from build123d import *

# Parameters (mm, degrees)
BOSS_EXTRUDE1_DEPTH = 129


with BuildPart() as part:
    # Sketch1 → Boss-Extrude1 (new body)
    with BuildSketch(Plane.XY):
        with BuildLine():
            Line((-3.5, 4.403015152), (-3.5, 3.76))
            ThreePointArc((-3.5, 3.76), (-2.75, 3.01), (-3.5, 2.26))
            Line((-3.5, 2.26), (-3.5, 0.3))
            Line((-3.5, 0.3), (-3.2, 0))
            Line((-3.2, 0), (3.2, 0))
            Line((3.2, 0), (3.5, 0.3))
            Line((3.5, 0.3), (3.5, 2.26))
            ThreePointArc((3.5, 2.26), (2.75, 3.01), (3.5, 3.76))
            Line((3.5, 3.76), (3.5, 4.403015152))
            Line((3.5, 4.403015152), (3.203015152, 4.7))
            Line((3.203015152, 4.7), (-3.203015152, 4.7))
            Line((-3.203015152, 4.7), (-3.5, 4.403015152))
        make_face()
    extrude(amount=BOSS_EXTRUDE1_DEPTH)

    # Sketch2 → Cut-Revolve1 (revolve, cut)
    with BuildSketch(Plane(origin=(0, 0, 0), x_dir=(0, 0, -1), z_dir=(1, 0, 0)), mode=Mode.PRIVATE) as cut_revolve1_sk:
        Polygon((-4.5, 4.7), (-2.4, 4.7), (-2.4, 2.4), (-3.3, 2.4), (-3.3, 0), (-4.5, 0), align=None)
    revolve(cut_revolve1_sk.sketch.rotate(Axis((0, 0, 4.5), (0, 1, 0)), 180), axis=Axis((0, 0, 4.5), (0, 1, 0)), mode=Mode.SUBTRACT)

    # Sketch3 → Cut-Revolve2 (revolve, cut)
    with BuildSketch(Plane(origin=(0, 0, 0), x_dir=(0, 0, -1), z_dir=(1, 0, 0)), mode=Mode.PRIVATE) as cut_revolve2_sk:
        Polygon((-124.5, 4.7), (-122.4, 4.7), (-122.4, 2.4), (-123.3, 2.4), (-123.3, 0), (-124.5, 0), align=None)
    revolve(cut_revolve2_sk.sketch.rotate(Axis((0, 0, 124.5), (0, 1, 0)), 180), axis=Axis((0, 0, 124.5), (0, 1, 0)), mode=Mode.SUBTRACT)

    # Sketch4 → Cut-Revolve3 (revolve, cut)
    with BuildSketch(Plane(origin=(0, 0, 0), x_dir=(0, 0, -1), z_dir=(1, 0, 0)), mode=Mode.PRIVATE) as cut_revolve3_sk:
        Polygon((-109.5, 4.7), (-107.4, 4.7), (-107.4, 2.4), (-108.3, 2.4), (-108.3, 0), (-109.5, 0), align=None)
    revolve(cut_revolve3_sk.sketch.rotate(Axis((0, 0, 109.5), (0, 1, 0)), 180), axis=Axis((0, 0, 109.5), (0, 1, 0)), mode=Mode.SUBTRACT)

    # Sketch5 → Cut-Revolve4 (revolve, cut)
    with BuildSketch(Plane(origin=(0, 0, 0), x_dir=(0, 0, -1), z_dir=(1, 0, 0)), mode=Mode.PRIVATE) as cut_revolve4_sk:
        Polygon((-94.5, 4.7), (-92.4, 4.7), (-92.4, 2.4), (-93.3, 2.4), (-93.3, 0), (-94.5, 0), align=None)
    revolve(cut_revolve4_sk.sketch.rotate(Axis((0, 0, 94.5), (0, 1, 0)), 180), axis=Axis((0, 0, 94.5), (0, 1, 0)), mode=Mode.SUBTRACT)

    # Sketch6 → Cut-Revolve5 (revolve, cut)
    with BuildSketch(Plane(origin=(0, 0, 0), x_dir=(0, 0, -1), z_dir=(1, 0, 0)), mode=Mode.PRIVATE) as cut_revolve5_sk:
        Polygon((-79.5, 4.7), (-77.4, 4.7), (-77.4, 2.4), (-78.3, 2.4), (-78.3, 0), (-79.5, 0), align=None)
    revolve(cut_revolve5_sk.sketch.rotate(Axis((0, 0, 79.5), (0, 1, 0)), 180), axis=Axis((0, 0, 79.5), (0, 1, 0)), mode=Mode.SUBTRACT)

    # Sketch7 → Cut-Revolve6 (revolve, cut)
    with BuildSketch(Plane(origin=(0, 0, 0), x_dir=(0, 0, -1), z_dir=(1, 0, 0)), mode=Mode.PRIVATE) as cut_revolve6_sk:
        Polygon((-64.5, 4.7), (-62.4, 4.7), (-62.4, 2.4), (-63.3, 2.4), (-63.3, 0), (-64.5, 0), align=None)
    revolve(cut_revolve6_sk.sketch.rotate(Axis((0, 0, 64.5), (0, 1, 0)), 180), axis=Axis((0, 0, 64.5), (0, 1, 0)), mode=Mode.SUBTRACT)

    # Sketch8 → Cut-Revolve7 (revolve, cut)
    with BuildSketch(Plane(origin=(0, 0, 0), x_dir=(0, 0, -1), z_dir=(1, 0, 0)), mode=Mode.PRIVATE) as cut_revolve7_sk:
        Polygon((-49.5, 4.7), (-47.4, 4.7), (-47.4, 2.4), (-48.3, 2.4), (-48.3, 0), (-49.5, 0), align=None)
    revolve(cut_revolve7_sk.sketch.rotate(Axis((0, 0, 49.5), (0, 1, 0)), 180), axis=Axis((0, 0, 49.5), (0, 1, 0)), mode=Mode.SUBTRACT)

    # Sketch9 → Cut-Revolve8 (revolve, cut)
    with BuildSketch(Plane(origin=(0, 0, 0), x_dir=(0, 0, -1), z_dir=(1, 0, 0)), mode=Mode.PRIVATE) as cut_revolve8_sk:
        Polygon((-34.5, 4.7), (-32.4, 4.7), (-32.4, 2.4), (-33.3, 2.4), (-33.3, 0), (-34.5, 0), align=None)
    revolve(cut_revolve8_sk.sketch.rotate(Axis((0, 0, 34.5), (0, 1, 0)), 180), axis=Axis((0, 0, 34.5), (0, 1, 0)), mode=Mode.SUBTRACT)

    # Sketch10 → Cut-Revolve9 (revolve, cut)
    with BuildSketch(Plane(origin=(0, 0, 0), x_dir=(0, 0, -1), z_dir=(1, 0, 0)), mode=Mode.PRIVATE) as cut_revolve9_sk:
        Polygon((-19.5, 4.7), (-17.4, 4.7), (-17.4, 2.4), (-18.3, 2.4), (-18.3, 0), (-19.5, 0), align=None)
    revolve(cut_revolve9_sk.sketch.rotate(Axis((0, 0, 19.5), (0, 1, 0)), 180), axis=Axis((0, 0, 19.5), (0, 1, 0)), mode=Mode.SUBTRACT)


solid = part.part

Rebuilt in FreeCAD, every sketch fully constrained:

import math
import FreeCAD as App
import Part
import Sketcher

V = App.Vector
Q = App.Units.Quantity


def add_polygon(sketch, points):
    """Adds a closed chain of lines whose ends are joined by coincident constraints."""
    first, n = sketch.GeometryCount, len(points)
    for a, b in zip(points, points[1:] + points[:1]):
        sketch.addGeometry(Part.LineSegment(App.Vector(*a, 0), App.Vector(*b, 0)), False)
    for i in range(n):
        sketch.addConstraint(Sketcher.Constraint("Coincident", first + i, 2, first + (i + 1) % n, 1))

doc = App.newDocument("Part")
body = doc.addObject("PartDesign::Body", "Body")

sketch1 = body.newObject("Sketcher::SketchObject", "Sketch")
sketch1.AttachmentSupport = (doc.getObject("XY_Plane"), [""])
sketch1.MapMode = "FlatFace"
sketch1.addGeometry(Part.LineSegment(V(-3.5, 4.4, 0), V(-3.5, 3.76, 0)), False)
sketch1.addGeometry(Part.ArcOfCircle(Part.Circle(V(-3.5, 3.01, 0), V(0, 0, 1), 0.75), math.radians(-90), math.radians(90)), False)
sketch1.addGeometry(Part.LineSegment(V(-3.5, 2.26, 0), V(-3.5, 0.3, 0)), False)
sketch1.addGeometry(Part.LineSegment(V(-3.5, 0.3, 0), V(-3.2, 0, 0)), False)
sketch1.addGeometry(Part.LineSegment(V(-3.2, 0, 0), V(3.2, 0, 0)), False)
sketch1.addGeometry(Part.LineSegment(V(3.2, 0, 0), V(3.5, 0.3, 0)), False)
sketch1.addGeometry(Part.LineSegment(V(3.5, 0.3, 0), V(3.5, 2.26, 0)), False)
sketch1.addGeometry(Part.ArcOfCircle(Part.Circle(V(3.5, 3.01, 0), V(0, 0, 1), 0.75), math.radians(90), math.radians(270)), False)
sketch1.addGeometry(Part.LineSegment(V(3.5, 3.76, 0), V(3.5, 4.4, 0)), False)
sketch1.addGeometry(Part.LineSegment(V(3.5, 4.4, 0), V(3.2, 4.7, 0)), False)
sketch1.addGeometry(Part.LineSegment(V(3.2, 4.7, 0), V(-3.2, 4.7, 0)), False)
sketch1.addGeometry(Part.LineSegment(V(-3.2, 4.7, 0), V(-3.5, 4.4, 0)), False)
sketch1.addConstraint(Sketcher.Constraint("Coincident", 0, 2, 1, 2))
sketch1.addConstraint(Sketcher.Constraint("Coincident", 1, 1, 2, 1))
sketch1.addConstraint(Sketcher.Constraint("Coincident", 2, 2, 3, 1))
sketch1.addConstraint(Sketcher.Constraint("Coincident", 3, 2, 4, 1))
sketch1.addConstraint(Sketcher.Constraint("Coincident", 4, 2, 5, 1))
sketch1.addConstraint(Sketcher.Constraint("Coincident", 5, 2, 6, 1))
sketch1.addConstraint(Sketcher.Constraint("Coincident", 6, 2, 7, 2))
sketch1.addConstraint(Sketcher.Constraint("Coincident", 7, 1, 8, 1))
sketch1.addConstraint(Sketcher.Constraint("Coincident", 8, 2, 9, 1))
sketch1.addConstraint(Sketcher.Constraint("Coincident", 9, 2, 10, 1))
sketch1.addConstraint(Sketcher.Constraint("Coincident", 10, 2, 11, 1))
sketch1.addConstraint(Sketcher.Constraint("Coincident", 11, 2, 0, 1))
sketch1.addConstraint(Sketcher.Constraint("Vertical", 0))
sketch1.addConstraint(Sketcher.Constraint("Vertical", 2))
sketch1.addConstraint(Sketcher.Constraint("Horizontal", 4))
sketch1.addConstraint(Sketcher.Constraint("Vertical", 6))
sketch1.addConstraint(Sketcher.Constraint("Vertical", 8))
sketch1.addConstraint(Sketcher.Constraint("Horizontal", 10))
sketch1.addConstraint(Sketcher.Constraint("Equal", 1, 7))
sketch1.addConstraint(Sketcher.Constraint("Symmetric", 3, 2, 4, 2, -1, 1))
sketch1.addConstraint(Sketcher.Constraint("Symmetric", 1, 3, 7, 3, -2))
sketch1.addConstraint(Sketcher.Constraint("Symmetric", 2, 2, 5, 2, -2))
sketch1.addConstraint(Sketcher.Constraint("Symmetric", 8, 2, 11, 2, -2))
sketch1.addConstraint(Sketcher.Constraint("Perpendicular", 3, 5))
sketch1.addConstraint(Sketcher.Constraint("Perpendicular", 5, 9))
sketch1.addConstraint(Sketcher.Constraint("Perpendicular", 9, 11))
sketch1.addConstraint(Sketcher.Constraint("Vertical", 1, 3, 0, 2))
sketch1.addConstraint(Sketcher.Constraint("Vertical", 0, 2, 1, 1))
sketch1.addConstraint(Sketcher.Constraint("Radius", 1, Q("0.75 mm")))
sketch1.addConstraint(Sketcher.Constraint("DistanceX", 4, 1, 4, 2, Q("6.4 mm")))
sketch1.addConstraint(Sketcher.Constraint("DistanceX", 1, 3, 7, 3, Q("7 mm")))
sketch1.addConstraint(Sketcher.Constraint("DistanceY", 2, 2, 2, 1, Q("1.96 mm")))
sketch1.addConstraint(Sketcher.Constraint("DistanceY", -1, 1, 9, 2, Q("4.7 mm")))
sketch1.addConstraint(Sketcher.Constraint("Distance", 9, Q("0.42 mm")))
pad1 = body.newObject("PartDesign::Pad", "Pad")
pad1.Profile = sketch1
pad1.Length = 129

sketch2 = body.newObject("Sketcher::SketchObject", "Sketch001")
sketch2.AttachmentSupport = (doc.getObject("YZ_Plane"), [""])
sketch2.MapMode = "FlatFace"
add_polygon(sketch2, [(4.7, 2.4), (4.7, 4.5), (0, 4.5), (0, 3.3), (2.4, 3.3), (2.4, 2.4)])
sketch2.addGeometry(Part.LineSegment(V(0, 4.5, 0), V(4.7, 4.5, 0)), True)
sketch2.addConstraint(Sketcher.Constraint("Vertical", 0))
sketch2.addConstraint(Sketcher.Constraint("Horizontal", 1))
sketch2.addConstraint(Sketcher.Constraint("Vertical", 2))
sketch2.addConstraint(Sketcher.Constraint("Horizontal", 3))
sketch2.addConstraint(Sketcher.Constraint("Vertical", 4))
sketch2.addConstraint(Sketcher.Constraint("Horizontal", 5))
sketch2.addConstraint(Sketcher.Constraint("Horizontal", 6))
sketch2.addConstraint(Sketcher.Constraint("Coincident", 6, 1, 1, 2))
sketch2.addConstraint(Sketcher.Constraint("PointOnObject", 1, 2, -2))
sketch2.addConstraint(Sketcher.Constraint("Vertical", 5, 2, 6, 2))
sketch2.addConstraint(Sketcher.Constraint("DistanceX", 1, 2, 1, 1, Q("4.7 mm")))
sketch2.addConstraint(Sketcher.Constraint("DistanceX", 3, 1, 3, 2, Q("2.4 mm")))
sketch2.addConstraint(Sketcher.Constraint("DistanceY", 0, 1, 0, 2, Q("2.1 mm")))
sketch2.addConstraint(Sketcher.Constraint("DistanceY", 2, 2, 2, 1, Q("1.2 mm")))
sketch2.addConstraint(Sketcher.Constraint("DistanceY", -1, 1, 0, 2, Q("4.5 mm")))
groove = body.newObject("PartDesign::Groove", "Groove")
groove.Profile = sketch2
groove.ReferenceAxis = (sketch2, ["Axis0"])
groove.Angle = 360

sketch3 = body.newObject("Sketcher::SketchObject", "Sketch002")
sketch3.AttachmentSupport = (doc.getObject("YZ_Plane"), [""])
sketch3.MapMode = "FlatFace"
add_polygon(sketch3, [(4.7, 122.4), (4.7, 124.5), (0, 124.5), (0, 123.3), (2.4, 123.3), (2.4, 122.4)])
sketch3.addGeometry(Part.LineSegment(V(0, 124.5, 0), V(4.7, 124.5, 0)), True)
sketch3.addConstraint(Sketcher.Constraint("Vertical", 0))
sketch3.addConstraint(Sketcher.Constraint("Horizontal", 1))
sketch3.addConstraint(Sketcher.Constraint("Vertical", 2))
sketch3.addConstraint(Sketcher.Constraint("Horizontal", 3))
sketch3.addConstraint(Sketcher.Constraint("Vertical", 4))
sketch3.addConstraint(Sketcher.Constraint("Horizontal", 5))
sketch3.addConstraint(Sketcher.Constraint("Horizontal", 6))
sketch3.addConstraint(Sketcher.Constraint("Coincident", 6, 1, 1, 2))
sketch3.addConstraint(Sketcher.Constraint("PointOnObject", 1, 2, -2))
sketch3.addConstraint(Sketcher.Constraint("Vertical", 5, 2, 6, 2))
sketch3.addConstraint(Sketcher.Constraint("DistanceX", 1, 2, 1, 1, Q("4.7 mm")))
sketch3.addConstraint(Sketcher.Constraint("DistanceX", 3, 1, 3, 2, Q("2.4 mm")))
sketch3.addConstraint(Sketcher.Constraint("DistanceY", 0, 1, 0, 2, Q("2.1 mm")))
sketch3.addConstraint(Sketcher.Constraint("DistanceY", 2, 2, 2, 1, Q("1.2 mm")))
sketch3.addConstraint(Sketcher.Constraint("DistanceY", -1, 1, 0, 2, Q("124.5 mm")))
groove2 = body.newObject("PartDesign::Groove", "Groove001")
groove2.Profile = sketch3
groove2.ReferenceAxis = (sketch3, ["Axis0"])
groove2.Angle = 360

sketch4 = body.newObject("Sketcher::SketchObject", "Sketch003")
sketch4.AttachmentSupport = (doc.getObject("YZ_Plane"), [""])
sketch4.MapMode = "FlatFace"
add_polygon(sketch4, [(4.7, 107.4), (4.7, 109.5), (0, 109.5), (0, 108.3), (2.4, 108.3), (2.4, 107.4)])
sketch4.addGeometry(Part.LineSegment(V(0, 109.5, 0), V(4.7, 109.5, 0)), True)
sketch4.addConstraint(Sketcher.Constraint("Vertical", 0))
sketch4.addConstraint(Sketcher.Constraint("Horizontal", 1))
sketch4.addConstraint(Sketcher.Constraint("Vertical", 2))
sketch4.addConstraint(Sketcher.Constraint("Horizontal", 3))
sketch4.addConstraint(Sketcher.Constraint("Vertical", 4))
sketch4.addConstraint(Sketcher.Constraint("Horizontal", 5))
sketch4.addConstraint(Sketcher.Constraint("Horizontal", 6))
sketch4.addConstraint(Sketcher.Constraint("Coincident", 6, 1, 1, 2))
sketch4.addConstraint(Sketcher.Constraint("PointOnObject", 1, 2, -2))
sketch4.addConstraint(Sketcher.Constraint("Vertical", 5, 2, 6, 2))
sketch4.addConstraint(Sketcher.Constraint("DistanceX", 1, 2, 1, 1, Q("4.7 mm")))
sketch4.addConstraint(Sketcher.Constraint("DistanceX", 3, 1, 3, 2, Q("2.4 mm")))
sketch4.addConstraint(Sketcher.Constraint("DistanceY", 0, 1, 0, 2, Q("2.1 mm")))
sketch4.addConstraint(Sketcher.Constraint("DistanceY", 2, 2, 2, 1, Q("1.2 mm")))
sketch4.addConstraint(Sketcher.Constraint("DistanceY", -1, 1, 0, 2, Q("109.5 mm")))
groove3 = body.newObject("PartDesign::Groove", "Groove002")
groove3.Profile = sketch4
groove3.ReferenceAxis = (sketch4, ["Axis0"])
groove3.Angle = 360

sketch5 = body.newObject("Sketcher::SketchObject", "Sketch004")
sketch5.AttachmentSupport = (doc.getObject("YZ_Plane"), [""])
sketch5.MapMode = "FlatFace"
add_polygon(sketch5, [(4.7, 92.4), (4.7, 94.5), (0, 94.5), (0, 93.3), (2.4, 93.3), (2.4, 92.4)])
sketch5.addGeometry(Part.LineSegment(V(0, 94.5, 0), V(4.7, 94.5, 0)), True)
sketch5.addConstraint(Sketcher.Constraint("Vertical", 0))
sketch5.addConstraint(Sketcher.Constraint("Horizontal", 1))
sketch5.addConstraint(Sketcher.Constraint("Vertical", 2))
sketch5.addConstraint(Sketcher.Constraint("Horizontal", 3))
sketch5.addConstraint(Sketcher.Constraint("Vertical", 4))
sketch5.addConstraint(Sketcher.Constraint("Horizontal", 5))
sketch5.addConstraint(Sketcher.Constraint("Horizontal", 6))
sketch5.addConstraint(Sketcher.Constraint("Coincident", 6, 1, 1, 2))
sketch5.addConstraint(Sketcher.Constraint("PointOnObject", 1, 2, -2))
sketch5.addConstraint(Sketcher.Constraint("Vertical", 5, 2, 6, 2))
sketch5.addConstraint(Sketcher.Constraint("DistanceX", 1, 2, 1, 1, Q("4.7 mm")))
sketch5.addConstraint(Sketcher.Constraint("DistanceX", 3, 1, 3, 2, Q("2.4 mm")))
sketch5.addConstraint(Sketcher.Constraint("DistanceY", 0, 1, 0, 2, Q("2.1 mm")))
sketch5.addConstraint(Sketcher.Constraint("DistanceY", 2, 2, 2, 1, Q("1.2 mm")))
sketch5.addConstraint(Sketcher.Constraint("DistanceY", -1, 1, 0, 2, Q("94.5 mm")))
groove4 = body.newObject("PartDesign::Groove", "Groove003")
groove4.Profile = sketch5
groove4.ReferenceAxis = (sketch5, ["Axis0"])
groove4.Angle = 360

sketch6 = body.newObject("Sketcher::SketchObject", "Sketch005")
sketch6.AttachmentSupport = (doc.getObject("YZ_Plane"), [""])
sketch6.MapMode = "FlatFace"
add_polygon(sketch6, [(4.7, 77.4), (4.7, 79.5), (0, 79.5), (0, 78.3), (2.4, 78.3), (2.4, 77.4)])
sketch6.addGeometry(Part.LineSegment(V(0, 79.5, 0), V(4.7, 79.5, 0)), True)
sketch6.addConstraint(Sketcher.Constraint("Vertical", 0))
sketch6.addConstraint(Sketcher.Constraint("Horizontal", 1))
sketch6.addConstraint(Sketcher.Constraint("Vertical", 2))
sketch6.addConstraint(Sketcher.Constraint("Horizontal", 3))
sketch6.addConstraint(Sketcher.Constraint("Vertical", 4))
sketch6.addConstraint(Sketcher.Constraint("Horizontal", 5))
sketch6.addConstraint(Sketcher.Constraint("Horizontal", 6))
sketch6.addConstraint(Sketcher.Constraint("Coincident", 6, 1, 1, 2))
sketch6.addConstraint(Sketcher.Constraint("PointOnObject", 1, 2, -2))
sketch6.addConstraint(Sketcher.Constraint("Vertical", 5, 2, 6, 2))
sketch6.addConstraint(Sketcher.Constraint("DistanceX", 1, 2, 1, 1, Q("4.7 mm")))
sketch6.addConstraint(Sketcher.Constraint("DistanceX", 3, 1, 3, 2, Q("2.4 mm")))
sketch6.addConstraint(Sketcher.Constraint("DistanceY", 0, 1, 0, 2, Q("2.1 mm")))
sketch6.addConstraint(Sketcher.Constraint("DistanceY", 2, 2, 2, 1, Q("1.2 mm")))
sketch6.addConstraint(Sketcher.Constraint("DistanceY", -1, 1, 0, 2, Q("79.5 mm")))
groove5 = body.newObject("PartDesign::Groove", "Groove004")
groove5.Profile = sketch6
groove5.ReferenceAxis = (sketch6, ["Axis0"])
groove5.Angle = 360

sketch7 = body.newObject("Sketcher::SketchObject", "Sketch006")
sketch7.AttachmentSupport = (doc.getObject("YZ_Plane"), [""])
sketch7.MapMode = "FlatFace"
add_polygon(sketch7, [(4.7, 62.4), (4.7, 64.5), (0, 64.5), (0, 63.3), (2.4, 63.3), (2.4, 62.4)])
sketch7.addGeometry(Part.LineSegment(V(0, 64.5, 0), V(4.7, 64.5, 0)), True)
sketch7.addConstraint(Sketcher.Constraint("Vertical", 0))
sketch7.addConstraint(Sketcher.Constraint("Horizontal", 1))
sketch7.addConstraint(Sketcher.Constraint("Vertical", 2))
sketch7.addConstraint(Sketcher.Constraint("Horizontal", 3))
sketch7.addConstraint(Sketcher.Constraint("Vertical", 4))
sketch7.addConstraint(Sketcher.Constraint("Horizontal", 5))
sketch7.addConstraint(Sketcher.Constraint("Horizontal", 6))
sketch7.addConstraint(Sketcher.Constraint("Coincident", 6, 1, 1, 2))
sketch7.addConstraint(Sketcher.Constraint("PointOnObject", 1, 2, -2))
sketch7.addConstraint(Sketcher.Constraint("Vertical", 5, 2, 6, 2))
sketch7.addConstraint(Sketcher.Constraint("DistanceX", 1, 2, 1, 1, Q("4.7 mm")))
sketch7.addConstraint(Sketcher.Constraint("DistanceX", 3, 1, 3, 2, Q("2.4 mm")))
sketch7.addConstraint(Sketcher.Constraint("DistanceY", 0, 1, 0, 2, Q("2.1 mm")))
sketch7.addConstraint(Sketcher.Constraint("DistanceY", 2, 2, 2, 1, Q("1.2 mm")))
sketch7.addConstraint(Sketcher.Constraint("DistanceY", -1, 1, 0, 2, Q("64.5 mm")))
groove6 = body.newObject("PartDesign::Groove", "Groove005")
groove6.Profile = sketch7
groove6.ReferenceAxis = (sketch7, ["Axis0"])
groove6.Angle = 360

sketch8 = body.newObject("Sketcher::SketchObject", "Sketch007")
sketch8.AttachmentSupport = (doc.getObject("YZ_Plane"), [""])
sketch8.MapMode = "FlatFace"
add_polygon(sketch8, [(4.7, 47.4), (4.7, 49.5), (0, 49.5), (0, 48.3), (2.4, 48.3), (2.4, 47.4)])
sketch8.addGeometry(Part.LineSegment(V(0, 49.5, 0), V(4.7, 49.5, 0)), True)
sketch8.addConstraint(Sketcher.Constraint("Vertical", 0))
sketch8.addConstraint(Sketcher.Constraint("Horizontal", 1))
sketch8.addConstraint(Sketcher.Constraint("Vertical", 2))
sketch8.addConstraint(Sketcher.Constraint("Horizontal", 3))
sketch8.addConstraint(Sketcher.Constraint("Vertical", 4))
sketch8.addConstraint(Sketcher.Constraint("Horizontal", 5))
sketch8.addConstraint(Sketcher.Constraint("Horizontal", 6))
sketch8.addConstraint(Sketcher.Constraint("Coincident", 6, 1, 1, 2))
sketch8.addConstraint(Sketcher.Constraint("PointOnObject", 1, 2, -2))
sketch8.addConstraint(Sketcher.Constraint("Vertical", 5, 2, 6, 2))
sketch8.addConstraint(Sketcher.Constraint("DistanceX", 1, 2, 1, 1, Q("4.7 mm")))
sketch8.addConstraint(Sketcher.Constraint("DistanceX", 3, 1, 3, 2, Q("2.4 mm")))
sketch8.addConstraint(Sketcher.Constraint("DistanceY", 0, 1, 0, 2, Q("2.1 mm")))
sketch8.addConstraint(Sketcher.Constraint("DistanceY", 2, 2, 2, 1, Q("1.2 mm")))
sketch8.addConstraint(Sketcher.Constraint("DistanceY", -1, 1, 0, 2, Q("49.5 mm")))
groove7 = body.newObject("PartDesign::Groove", "Groove006")
groove7.Profile = sketch8
groove7.ReferenceAxis = (sketch8, ["Axis0"])
groove7.Angle = 360

sketch9 = body.newObject("Sketcher::SketchObject", "Sketch008")
sketch9.AttachmentSupport = (doc.getObject("YZ_Plane"), [""])
sketch9.MapMode = "FlatFace"
add_polygon(sketch9, [(4.7, 32.4), (4.7, 34.5), (0, 34.5), (0, 33.3), (2.4, 33.3), (2.4, 32.4)])
sketch9.addGeometry(Part.LineSegment(V(0, 34.5, 0), V(4.7, 34.5, 0)), True)
sketch9.addConstraint(Sketcher.Constraint("Vertical", 0))
sketch9.addConstraint(Sketcher.Constraint("Horizontal", 1))
sketch9.addConstraint(Sketcher.Constraint("Vertical", 2))
sketch9.addConstraint(Sketcher.Constraint("Horizontal", 3))
sketch9.addConstraint(Sketcher.Constraint("Vertical", 4))
sketch9.addConstraint(Sketcher.Constraint("Horizontal", 5))
sketch9.addConstraint(Sketcher.Constraint("Horizontal", 6))
sketch9.addConstraint(Sketcher.Constraint("Coincident", 6, 1, 1, 2))
sketch9.addConstraint(Sketcher.Constraint("PointOnObject", 1, 2, -2))
sketch9.addConstraint(Sketcher.Constraint("Vertical", 5, 2, 6, 2))
sketch9.addConstraint(Sketcher.Constraint("DistanceX", 1, 2, 1, 1, Q("4.7 mm")))
sketch9.addConstraint(Sketcher.Constraint("DistanceX", 3, 1, 3, 2, Q("2.4 mm")))
sketch9.addConstraint(Sketcher.Constraint("DistanceY", 0, 1, 0, 2, Q("2.1 mm")))
sketch9.addConstraint(Sketcher.Constraint("DistanceY", 2, 2, 2, 1, Q("1.2 mm")))
sketch9.addConstraint(Sketcher.Constraint("DistanceY", -1, 1, 0, 2, Q("34.5 mm")))
groove8 = body.newObject("PartDesign::Groove", "Groove007")
groove8.Profile = sketch9
groove8.ReferenceAxis = (sketch9, ["Axis0"])
groove8.Angle = 360

sketch10 = body.newObject("Sketcher::SketchObject", "Sketch009")
sketch10.AttachmentSupport = (doc.getObject("YZ_Plane"), [""])
sketch10.MapMode = "FlatFace"
add_polygon(sketch10, [(4.7, 17.4), (4.7, 19.5), (0, 19.5), (0, 18.3), (2.4, 18.3), (2.4, 17.4)])
sketch10.addGeometry(Part.LineSegment(V(0, 19.5, 0), V(4.7, 19.5, 0)), True)
sketch10.addConstraint(Sketcher.Constraint("Vertical", 0))
sketch10.addConstraint(Sketcher.Constraint("Horizontal", 1))
sketch10.addConstraint(Sketcher.Constraint("Vertical", 2))
sketch10.addConstraint(Sketcher.Constraint("Horizontal", 3))
sketch10.addConstraint(Sketcher.Constraint("Vertical", 4))
sketch10.addConstraint(Sketcher.Constraint("Horizontal", 5))
sketch10.addConstraint(Sketcher.Constraint("Horizontal", 6))
sketch10.addConstraint(Sketcher.Constraint("Coincident", 6, 1, 1, 2))
sketch10.addConstraint(Sketcher.Constraint("PointOnObject", 1, 2, -2))
sketch10.addConstraint(Sketcher.Constraint("Vertical", 5, 2, 6, 2))
sketch10.addConstraint(Sketcher.Constraint("DistanceX", 1, 2, 1, 1, Q("4.7 mm")))
sketch10.addConstraint(Sketcher.Constraint("DistanceX", 3, 1, 3, 2, Q("2.4 mm")))
sketch10.addConstraint(Sketcher.Constraint("DistanceY", 0, 1, 0, 2, Q("2.1 mm")))
sketch10.addConstraint(Sketcher.Constraint("DistanceY", 2, 2, 2, 1, Q("1.2 mm")))
sketch10.addConstraint(Sketcher.Constraint("DistanceY", -1, 1, 0, 2, Q("19.5 mm")))
groove9 = body.newObject("PartDesign::Groove", "Groove008")
groove9.Profile = sketch10
groove9.ReferenceAxis = (sketch10, ["Axis0"])
groove9.Angle = 360

doc.recompute()
